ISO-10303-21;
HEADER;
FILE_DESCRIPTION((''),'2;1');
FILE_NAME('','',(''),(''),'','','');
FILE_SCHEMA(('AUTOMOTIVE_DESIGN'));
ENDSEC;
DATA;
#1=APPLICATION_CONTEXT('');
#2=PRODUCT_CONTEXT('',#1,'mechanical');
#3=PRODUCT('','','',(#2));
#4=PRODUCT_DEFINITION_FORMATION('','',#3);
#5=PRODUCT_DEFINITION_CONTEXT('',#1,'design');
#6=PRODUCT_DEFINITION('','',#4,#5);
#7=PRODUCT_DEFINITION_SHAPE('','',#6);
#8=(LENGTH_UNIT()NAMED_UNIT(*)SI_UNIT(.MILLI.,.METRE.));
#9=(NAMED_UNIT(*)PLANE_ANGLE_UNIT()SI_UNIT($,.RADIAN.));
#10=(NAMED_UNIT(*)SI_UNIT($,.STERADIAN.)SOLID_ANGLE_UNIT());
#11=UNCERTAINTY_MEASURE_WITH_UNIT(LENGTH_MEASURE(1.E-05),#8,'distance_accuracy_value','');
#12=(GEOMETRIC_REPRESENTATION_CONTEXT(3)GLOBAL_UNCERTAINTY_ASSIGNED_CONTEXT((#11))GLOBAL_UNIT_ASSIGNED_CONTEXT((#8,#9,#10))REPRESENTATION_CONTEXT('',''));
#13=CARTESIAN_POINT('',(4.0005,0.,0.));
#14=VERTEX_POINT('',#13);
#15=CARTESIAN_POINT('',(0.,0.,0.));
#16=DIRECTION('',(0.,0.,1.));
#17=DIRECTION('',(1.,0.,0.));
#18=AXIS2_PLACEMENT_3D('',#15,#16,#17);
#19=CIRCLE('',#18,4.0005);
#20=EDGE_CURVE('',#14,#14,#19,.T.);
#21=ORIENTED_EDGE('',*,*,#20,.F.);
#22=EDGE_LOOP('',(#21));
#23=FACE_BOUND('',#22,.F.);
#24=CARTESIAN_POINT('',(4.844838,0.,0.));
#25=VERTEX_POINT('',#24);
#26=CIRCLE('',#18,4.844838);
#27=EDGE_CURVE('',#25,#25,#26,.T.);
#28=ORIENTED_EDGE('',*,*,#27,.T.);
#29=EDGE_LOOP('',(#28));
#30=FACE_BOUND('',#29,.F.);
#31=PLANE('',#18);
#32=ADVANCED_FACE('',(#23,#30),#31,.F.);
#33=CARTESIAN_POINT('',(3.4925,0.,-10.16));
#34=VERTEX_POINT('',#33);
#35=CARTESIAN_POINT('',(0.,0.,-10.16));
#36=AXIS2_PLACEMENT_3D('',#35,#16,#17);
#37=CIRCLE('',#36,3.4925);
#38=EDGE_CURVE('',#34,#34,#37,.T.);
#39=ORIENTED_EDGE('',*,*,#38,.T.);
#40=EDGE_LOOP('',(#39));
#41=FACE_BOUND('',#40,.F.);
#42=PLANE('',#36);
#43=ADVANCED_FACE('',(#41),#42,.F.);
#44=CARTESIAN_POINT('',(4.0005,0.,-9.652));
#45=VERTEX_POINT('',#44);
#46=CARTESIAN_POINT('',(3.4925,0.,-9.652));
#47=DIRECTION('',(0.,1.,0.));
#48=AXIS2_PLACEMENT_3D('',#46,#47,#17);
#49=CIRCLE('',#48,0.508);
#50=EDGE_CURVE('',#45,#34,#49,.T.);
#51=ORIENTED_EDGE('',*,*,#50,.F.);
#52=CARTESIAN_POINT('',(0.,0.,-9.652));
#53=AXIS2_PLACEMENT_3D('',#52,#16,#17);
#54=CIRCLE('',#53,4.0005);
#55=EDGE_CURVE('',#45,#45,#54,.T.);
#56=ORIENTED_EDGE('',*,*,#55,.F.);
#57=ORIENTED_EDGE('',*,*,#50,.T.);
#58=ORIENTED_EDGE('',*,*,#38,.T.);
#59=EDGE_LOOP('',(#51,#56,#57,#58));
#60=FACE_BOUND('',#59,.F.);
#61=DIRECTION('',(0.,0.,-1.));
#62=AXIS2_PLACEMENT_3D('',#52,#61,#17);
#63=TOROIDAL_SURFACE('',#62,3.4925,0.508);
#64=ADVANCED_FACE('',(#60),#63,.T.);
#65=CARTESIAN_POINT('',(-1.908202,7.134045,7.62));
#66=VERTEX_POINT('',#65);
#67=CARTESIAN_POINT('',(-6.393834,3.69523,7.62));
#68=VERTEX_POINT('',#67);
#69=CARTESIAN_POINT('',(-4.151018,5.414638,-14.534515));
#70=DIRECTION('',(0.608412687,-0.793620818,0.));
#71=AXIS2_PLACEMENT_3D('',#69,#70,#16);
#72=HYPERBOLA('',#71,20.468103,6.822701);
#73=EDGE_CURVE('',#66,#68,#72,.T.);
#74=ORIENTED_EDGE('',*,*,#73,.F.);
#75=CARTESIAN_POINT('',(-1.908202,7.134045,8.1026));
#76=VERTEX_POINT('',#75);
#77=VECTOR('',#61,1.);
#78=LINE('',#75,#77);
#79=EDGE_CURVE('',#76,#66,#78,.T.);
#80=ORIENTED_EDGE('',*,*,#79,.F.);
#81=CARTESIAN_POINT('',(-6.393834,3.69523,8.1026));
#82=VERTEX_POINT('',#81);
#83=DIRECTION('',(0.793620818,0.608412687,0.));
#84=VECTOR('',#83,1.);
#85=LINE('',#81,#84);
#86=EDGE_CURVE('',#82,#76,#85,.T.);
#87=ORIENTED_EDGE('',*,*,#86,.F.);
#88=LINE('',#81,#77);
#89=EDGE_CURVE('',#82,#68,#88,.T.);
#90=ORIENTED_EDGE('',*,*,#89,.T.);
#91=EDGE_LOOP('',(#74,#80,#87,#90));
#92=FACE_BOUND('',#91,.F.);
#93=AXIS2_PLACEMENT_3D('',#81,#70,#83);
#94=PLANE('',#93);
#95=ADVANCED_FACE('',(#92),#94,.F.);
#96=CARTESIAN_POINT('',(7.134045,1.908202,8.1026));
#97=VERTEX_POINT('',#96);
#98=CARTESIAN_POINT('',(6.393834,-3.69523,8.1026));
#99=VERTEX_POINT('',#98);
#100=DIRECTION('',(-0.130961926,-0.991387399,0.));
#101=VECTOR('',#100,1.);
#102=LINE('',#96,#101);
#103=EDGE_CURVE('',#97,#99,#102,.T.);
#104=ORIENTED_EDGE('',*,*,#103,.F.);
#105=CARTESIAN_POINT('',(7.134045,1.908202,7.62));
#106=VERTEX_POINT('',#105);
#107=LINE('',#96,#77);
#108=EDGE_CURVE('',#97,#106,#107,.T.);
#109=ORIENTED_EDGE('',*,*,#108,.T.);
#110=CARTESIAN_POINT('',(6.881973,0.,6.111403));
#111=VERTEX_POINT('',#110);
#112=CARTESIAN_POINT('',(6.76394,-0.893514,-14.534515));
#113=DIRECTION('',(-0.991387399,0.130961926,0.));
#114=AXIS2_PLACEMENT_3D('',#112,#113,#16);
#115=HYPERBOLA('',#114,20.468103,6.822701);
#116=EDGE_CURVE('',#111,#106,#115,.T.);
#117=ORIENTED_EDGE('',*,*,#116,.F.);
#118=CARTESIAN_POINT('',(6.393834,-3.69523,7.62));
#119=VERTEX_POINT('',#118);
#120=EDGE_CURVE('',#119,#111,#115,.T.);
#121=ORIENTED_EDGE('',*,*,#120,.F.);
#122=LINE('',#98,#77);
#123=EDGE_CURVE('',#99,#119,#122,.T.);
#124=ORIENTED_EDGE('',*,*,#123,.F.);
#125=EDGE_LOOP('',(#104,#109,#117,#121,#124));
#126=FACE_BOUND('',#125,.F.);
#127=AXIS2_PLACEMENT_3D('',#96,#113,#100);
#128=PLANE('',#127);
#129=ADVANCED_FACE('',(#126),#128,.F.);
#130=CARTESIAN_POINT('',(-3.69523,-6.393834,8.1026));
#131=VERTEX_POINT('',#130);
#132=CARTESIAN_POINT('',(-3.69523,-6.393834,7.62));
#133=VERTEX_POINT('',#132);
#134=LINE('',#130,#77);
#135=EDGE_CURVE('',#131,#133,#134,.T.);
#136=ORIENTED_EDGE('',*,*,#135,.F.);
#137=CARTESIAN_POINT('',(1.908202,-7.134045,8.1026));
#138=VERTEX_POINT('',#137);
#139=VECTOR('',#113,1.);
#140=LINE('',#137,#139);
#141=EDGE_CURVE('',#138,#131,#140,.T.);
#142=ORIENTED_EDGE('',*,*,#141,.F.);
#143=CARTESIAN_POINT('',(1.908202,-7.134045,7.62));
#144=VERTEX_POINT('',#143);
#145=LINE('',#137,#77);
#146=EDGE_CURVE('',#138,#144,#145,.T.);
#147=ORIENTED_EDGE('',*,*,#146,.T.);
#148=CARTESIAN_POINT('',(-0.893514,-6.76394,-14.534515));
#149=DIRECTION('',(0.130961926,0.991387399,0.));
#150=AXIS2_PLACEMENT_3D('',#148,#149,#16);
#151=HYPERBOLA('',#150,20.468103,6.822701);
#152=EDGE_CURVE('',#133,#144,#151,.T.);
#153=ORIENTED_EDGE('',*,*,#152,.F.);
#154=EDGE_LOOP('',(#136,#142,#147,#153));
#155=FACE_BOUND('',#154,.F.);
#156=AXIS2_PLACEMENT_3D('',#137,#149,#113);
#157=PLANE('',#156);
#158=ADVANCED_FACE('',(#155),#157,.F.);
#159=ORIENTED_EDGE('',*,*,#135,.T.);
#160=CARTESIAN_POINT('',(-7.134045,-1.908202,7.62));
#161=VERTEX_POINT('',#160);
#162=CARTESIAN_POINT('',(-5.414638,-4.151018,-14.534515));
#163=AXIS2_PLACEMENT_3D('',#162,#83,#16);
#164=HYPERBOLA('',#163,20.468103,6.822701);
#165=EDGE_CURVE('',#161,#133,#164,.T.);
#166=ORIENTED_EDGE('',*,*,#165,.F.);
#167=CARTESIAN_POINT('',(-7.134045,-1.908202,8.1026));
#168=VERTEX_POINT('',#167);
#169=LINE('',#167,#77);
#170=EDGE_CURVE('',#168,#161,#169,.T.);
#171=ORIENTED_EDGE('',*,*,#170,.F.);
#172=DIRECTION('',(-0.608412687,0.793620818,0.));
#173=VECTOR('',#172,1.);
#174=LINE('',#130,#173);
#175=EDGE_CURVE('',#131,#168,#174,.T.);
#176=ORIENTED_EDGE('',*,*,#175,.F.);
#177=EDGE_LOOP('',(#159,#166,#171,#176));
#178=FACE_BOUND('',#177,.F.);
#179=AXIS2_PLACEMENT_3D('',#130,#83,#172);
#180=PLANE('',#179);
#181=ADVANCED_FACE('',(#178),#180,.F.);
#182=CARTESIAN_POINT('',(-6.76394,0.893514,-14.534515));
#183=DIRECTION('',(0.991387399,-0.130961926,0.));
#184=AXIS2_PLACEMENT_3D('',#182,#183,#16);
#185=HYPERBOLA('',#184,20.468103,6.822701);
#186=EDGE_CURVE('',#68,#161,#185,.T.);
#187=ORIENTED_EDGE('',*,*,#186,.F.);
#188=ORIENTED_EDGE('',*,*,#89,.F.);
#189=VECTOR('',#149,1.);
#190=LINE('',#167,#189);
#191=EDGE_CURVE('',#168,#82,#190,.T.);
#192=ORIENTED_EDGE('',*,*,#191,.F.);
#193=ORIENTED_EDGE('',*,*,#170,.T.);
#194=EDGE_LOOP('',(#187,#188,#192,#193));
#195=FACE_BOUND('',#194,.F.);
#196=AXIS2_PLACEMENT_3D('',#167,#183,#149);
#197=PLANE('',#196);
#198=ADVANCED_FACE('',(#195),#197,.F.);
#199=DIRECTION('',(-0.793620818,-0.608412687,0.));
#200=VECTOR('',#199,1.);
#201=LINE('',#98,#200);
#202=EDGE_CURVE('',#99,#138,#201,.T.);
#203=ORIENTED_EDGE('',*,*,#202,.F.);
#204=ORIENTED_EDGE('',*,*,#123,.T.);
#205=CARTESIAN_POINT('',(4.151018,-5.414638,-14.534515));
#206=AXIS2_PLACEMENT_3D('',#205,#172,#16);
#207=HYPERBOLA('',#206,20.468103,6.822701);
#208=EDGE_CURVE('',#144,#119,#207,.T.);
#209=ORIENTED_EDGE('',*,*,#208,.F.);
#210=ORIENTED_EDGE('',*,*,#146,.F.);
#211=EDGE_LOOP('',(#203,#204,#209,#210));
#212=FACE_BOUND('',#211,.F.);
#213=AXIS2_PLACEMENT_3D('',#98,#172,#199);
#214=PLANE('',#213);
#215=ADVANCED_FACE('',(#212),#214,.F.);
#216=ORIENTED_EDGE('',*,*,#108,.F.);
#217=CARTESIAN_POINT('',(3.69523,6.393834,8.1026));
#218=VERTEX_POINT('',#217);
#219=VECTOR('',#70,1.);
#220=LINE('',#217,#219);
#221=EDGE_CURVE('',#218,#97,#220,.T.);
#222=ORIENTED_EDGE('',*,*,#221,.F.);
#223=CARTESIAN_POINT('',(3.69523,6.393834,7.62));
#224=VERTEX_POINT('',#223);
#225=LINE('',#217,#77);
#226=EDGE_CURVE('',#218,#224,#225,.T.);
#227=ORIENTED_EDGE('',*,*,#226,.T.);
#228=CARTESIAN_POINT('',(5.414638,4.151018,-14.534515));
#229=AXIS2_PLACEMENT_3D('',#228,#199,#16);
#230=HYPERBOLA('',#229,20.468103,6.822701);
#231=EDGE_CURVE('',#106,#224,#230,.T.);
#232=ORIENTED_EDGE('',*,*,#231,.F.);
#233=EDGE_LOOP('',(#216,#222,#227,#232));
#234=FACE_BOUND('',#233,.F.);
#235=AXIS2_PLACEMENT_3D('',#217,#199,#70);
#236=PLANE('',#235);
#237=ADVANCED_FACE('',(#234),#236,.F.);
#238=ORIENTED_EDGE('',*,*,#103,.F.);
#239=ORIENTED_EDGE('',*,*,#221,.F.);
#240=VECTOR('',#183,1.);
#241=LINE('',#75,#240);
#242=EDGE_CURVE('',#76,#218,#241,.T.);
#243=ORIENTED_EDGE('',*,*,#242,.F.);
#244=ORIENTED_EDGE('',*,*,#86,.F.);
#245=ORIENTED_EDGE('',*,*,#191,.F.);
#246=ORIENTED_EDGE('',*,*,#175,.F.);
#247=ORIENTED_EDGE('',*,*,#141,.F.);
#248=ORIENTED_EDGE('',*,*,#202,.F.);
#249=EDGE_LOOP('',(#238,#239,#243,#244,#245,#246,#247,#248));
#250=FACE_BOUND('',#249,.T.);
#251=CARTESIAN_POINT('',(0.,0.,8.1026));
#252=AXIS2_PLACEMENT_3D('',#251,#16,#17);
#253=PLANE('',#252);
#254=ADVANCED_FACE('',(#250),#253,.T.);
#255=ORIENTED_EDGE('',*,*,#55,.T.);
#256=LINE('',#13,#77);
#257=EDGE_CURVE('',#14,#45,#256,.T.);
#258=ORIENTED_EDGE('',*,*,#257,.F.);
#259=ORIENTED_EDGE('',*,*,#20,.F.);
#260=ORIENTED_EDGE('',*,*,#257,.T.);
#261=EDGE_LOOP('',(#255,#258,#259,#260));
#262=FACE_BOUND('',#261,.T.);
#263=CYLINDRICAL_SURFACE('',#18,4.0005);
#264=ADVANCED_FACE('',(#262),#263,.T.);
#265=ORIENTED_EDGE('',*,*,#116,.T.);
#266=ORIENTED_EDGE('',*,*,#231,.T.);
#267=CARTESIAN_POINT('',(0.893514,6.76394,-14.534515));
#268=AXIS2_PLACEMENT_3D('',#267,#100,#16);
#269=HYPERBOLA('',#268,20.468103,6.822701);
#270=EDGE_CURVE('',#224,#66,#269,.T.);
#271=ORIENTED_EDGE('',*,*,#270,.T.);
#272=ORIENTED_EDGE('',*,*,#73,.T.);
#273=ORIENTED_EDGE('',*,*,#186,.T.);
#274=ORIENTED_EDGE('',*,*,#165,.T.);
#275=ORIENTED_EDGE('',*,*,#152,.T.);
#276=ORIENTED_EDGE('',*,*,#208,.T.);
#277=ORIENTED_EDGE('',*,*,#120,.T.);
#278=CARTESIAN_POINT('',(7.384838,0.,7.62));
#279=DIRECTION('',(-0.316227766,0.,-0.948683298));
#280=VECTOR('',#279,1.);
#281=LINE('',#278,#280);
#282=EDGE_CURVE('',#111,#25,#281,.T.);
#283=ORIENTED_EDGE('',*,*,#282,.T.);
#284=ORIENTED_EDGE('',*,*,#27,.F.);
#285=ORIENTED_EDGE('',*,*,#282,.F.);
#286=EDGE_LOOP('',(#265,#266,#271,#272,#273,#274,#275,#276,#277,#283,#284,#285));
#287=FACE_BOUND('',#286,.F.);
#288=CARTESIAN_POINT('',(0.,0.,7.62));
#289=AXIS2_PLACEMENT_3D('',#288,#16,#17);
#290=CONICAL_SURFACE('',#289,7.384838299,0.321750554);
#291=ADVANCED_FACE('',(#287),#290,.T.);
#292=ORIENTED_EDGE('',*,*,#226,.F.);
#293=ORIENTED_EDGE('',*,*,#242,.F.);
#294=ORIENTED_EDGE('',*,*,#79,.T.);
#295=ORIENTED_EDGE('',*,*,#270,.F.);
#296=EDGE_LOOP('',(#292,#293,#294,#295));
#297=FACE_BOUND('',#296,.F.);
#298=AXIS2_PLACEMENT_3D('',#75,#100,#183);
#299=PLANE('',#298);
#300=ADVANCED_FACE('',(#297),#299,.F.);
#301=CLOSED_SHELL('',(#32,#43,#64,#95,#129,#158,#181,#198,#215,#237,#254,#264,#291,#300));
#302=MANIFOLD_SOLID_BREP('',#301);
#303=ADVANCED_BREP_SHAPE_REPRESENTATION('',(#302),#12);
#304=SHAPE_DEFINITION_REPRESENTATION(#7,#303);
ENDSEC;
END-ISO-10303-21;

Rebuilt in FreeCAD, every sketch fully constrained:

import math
import FreeCAD as App
import Part
import Sketcher
from FreeCAD import Vector
Q = App.Units.Quantity


def edges_at(feature, points):
    """Names of the edges that pass closest to the given points."""
    edges = feature.Shape.Edges
    near = lambda p: min(range(len(edges)), key=lambda i: edges[i].distToShape(Part.Vertex(*p))[0])
    return sorted({f"Edge{near(p) + 1}" for p in points})

doc = App.newDocument("Part")
body = doc.addObject("PartDesign::Body", "Body")

sketch1 = body.newObject("Sketcher::SketchObject", "Sketch")
sketch1.AttachmentSupport = (doc.getObject("XY_Plane"), [""])
sketch1.MapMode = "FlatFace"
sketch1.addGeometry(Part.Circle(Vector(0, 0, 0), Vector(0, 0, 1), 4.0005), False)
sketch1.addConstraint(Sketcher.Constraint("Coincident", 0, 3, -1, 1))
sketch1.addConstraint(Sketcher.Constraint("Diameter", 0, Q("0.315 in")))
pad1 = body.newObject("PartDesign::Pad", "Pad")
pad1.Profile = sketch1
pad1.Length = Q("0.4 in")
pad1.Reversed = True

sketch2 = body.newObject("Sketcher::SketchObject", "Sketch001")
sketch2.AttachmentSupport = (doc.getObject("XY_Plane"), [""])
sketch2.MapMode = "FlatFace"
sketch2.addGeometry(Part.Circle(Vector(0, 0, 0), Vector(0, 0, 1), 7.384838), False)
sketch2.addConstraint(Sketcher.Constraint("Coincident", 0, 3, -1, 1))
sketch2.addConstraint(Sketcher.Constraint("Diameter", 0, Q("14.769677 mm")))
pad2 = body.newObject("PartDesign::Pad", "Pad001")
pad2.Profile = sketch2
pad2.Length = Q("0.319 in")
doc.recompute()

chamfer = body.newObject("PartDesign::Chamfer", "Chamfer")
chamfer.Base = (pad2, edges_at(pad2, [(-7.385, 0, 0)]))
chamfer.ChamferType = "Two distances"
chamfer.Size = Q("0.3 in")
chamfer.Size2 = Q("0.1 in")
chamfer.FlipDirection = True

sketch3 = body.newObject("Sketcher::SketchObject", "Sketch002")
sketch3.AttachmentSupport = (doc.getObject("XY_Plane"), [""])
sketch3.MapMode = "FlatFace"
sketch3.AttachmentOffset = App.Placement(Vector(0, 0, 0.319 * 25.4), App.Rotation())
sketch3.addGeometry(Part.LineSegment(Vector(-6.393834, 3.69523, 0), Vector(-1.908202, 7.134045, 0)), False)
sketch3.addGeometry(Part.ArcOfCircle(Part.Circle(Vector(0, 0, 0), Vector(0, 0, 1), 7.384838), math.radians(104.974818), math.radians(149.974818)), False)
sketch3.addGeometry(Part.LineSegment(Vector(-1.908202, 7.134045, 0), Vector(3.69523, 6.393834, 0)), False)
sketch3.addGeometry(Part.ArcOfCircle(Part.Circle(Vector(0, 0, 0), Vector(0, 0, 1), 7.384838), math.radians(59.974818), math.radians(104.974818)), False)
sketch3.addGeometry(Part.LineSegment(Vector(3.69523, 6.393834, 0), Vector(7.134045, 1.908202, 0)), False)
sketch3.addGeometry(Part.ArcOfCircle(Part.Circle(Vector(0, 0, 0), Vector(0, 0, 1), 7.384838), math.radians(14.974818), math.radians(59.974818)), False)
sketch3.addGeometry(Part.LineSegment(Vector(7.134045, 1.908202, 0), Vector(6.393834, -3.69523, 0)), False)
sketch3.addGeometry(Part.ArcOfCircle(Part.Circle(Vector(0, 0, 0), Vector(0, 0, 1), 7.384838), math.radians(-30.025182), math.radians(0)), False)
sketch3.addGeometry(Part.ArcOfCircle(Part.Circle(Vector(0, 0, 0), Vector(0, 0, 1), 7.384838), math.radians(0), math.radians(14.974818)), False)
sketch3.addGeometry(Part.ArcOfCircle(Part.Circle(Vector(0, 0, 0), Vector(0, 0, 1), 7.384838), math.radians(-75.025182), math.radians(-30.025182)), False)
sketch3.addGeometry(Part.LineSegment(Vector(6.393834, -3.69523, 0), Vector(1.908202, -7.134045, 0)), False)
sketch3.addGeometry(Part.ArcOfCircle(Part.Circle(Vector(0, 0, 0), Vector(0, 0, 1), 7.384838), math.radians(-120.025182), math.radians(-75.025182)), False)
sketch3.addGeometry(Part.LineSegment(Vector(1.908202, -7.134045, 0), Vector(-3.69523, -6.393834, 0)), False)
sketch3.addGeometry(Part.ArcOfCircle(Part.Circle(Vector(0, 0, 0), Vector(0, 0, 1), 7.384838), math.radians(-165.025182), math.radians(-120.025182)), False)
sketch3.addGeometry(Part.LineSegment(Vector(-3.69523, -6.393834, 0), Vector(-7.134045, -1.908202, 0)), False)
sketch3.addGeometry(Part.ArcOfCircle(Part.Circle(Vector(0, 0, 0), Vector(0, 0, 1), 7.384838), math.radians(149.974818), math.radians(194.974818)), False)
sketch3.addGeometry(Part.LineSegment(Vector(-7.134045, -1.908202, 0), Vector(-6.393834, 3.69523, 0)), False)
sketch3.addConstraint(Sketcher.Constraint("Coincident", 0, 1, 1, 2))
sketch3.addConstraint(Sketcher.Constraint("Coincident", 1, 1, 0, 2))
sketch3.addConstraint(Sketcher.Constraint("Coincident", 2, 1, 3, 2))
sketch3.addConstraint(Sketcher.Constraint("Coincident", 3, 1, 2, 2))
sketch3.addConstraint(Sketcher.Constraint("Coincident", 4, 1, 5, 2))
sketch3.addConstraint(Sketcher.Constraint("Coincident", 5, 1, 4, 2))
sketch3.addConstraint(Sketcher.Constraint("Coincident", 6, 2, 7, 1))
sketch3.addConstraint(Sketcher.Constraint("Tangent", 7, 2, 8, 1))
sketch3.addConstraint(Sketcher.Constraint("Coincident", 8, 2, 6, 1))
sketch3.addConstraint(Sketcher.Constraint("Coincident", 9, 1, 10, 2))
sketch3.addConstraint(Sketcher.Constraint("Coincident", 10, 1, 9, 2))
sketch3.addConstraint(Sketcher.Constraint("Coincident", 11, 1, 12, 2))
sketch3.addConstraint(Sketcher.Constraint("Coincident", 12, 1, 11, 2))
sketch3.addConstraint(Sketcher.Constraint("Coincident", 13, 1, 14, 2))
sketch3.addConstraint(Sketcher.Constraint("Coincident", 14, 1, 13, 2))
sketch3.addConstraint(Sketcher.Constraint("Coincident", 15, 1, 16, 2))
sketch3.addConstraint(Sketcher.Constraint("Coincident", 16, 1, 15, 2))
sketch3.addConstraint(Sketcher.Constraint("Coincident", 1, 3, -1, 1))
sketch3.addConstraint(Sketcher.Constraint("Coincident", 3, 3, -1, 1))
sketch3.addConstraint(Sketcher.Constraint("Coincident", 5, 3, -1, 1))
sketch3.addConstraint(Sketcher.Constraint("Coincident", 7, 3, -1, 1))
sketch3.addConstraint(Sketcher.Constraint("Coincident", 9, 3, -1, 1))
sketch3.addConstraint(Sketcher.Constraint("Coincident", 11, 3, -1, 1))
sketch3.addConstraint(Sketcher.Constraint("Coincident", 13, 3, -1, 1))
sketch3.addConstraint(Sketcher.Constraint("Coincident", 15, 3, -1, 1))
sketch3.addConstraint(Sketcher.Constraint("Coincident", 2, 1, 1, 1))
sketch3.addConstraint(Sketcher.Constraint("Coincident", 4, 1, 3, 1))
sketch3.addConstraint(Sketcher.Constraint("Coincident", 8, 2, 5, 1))
sketch3.addConstraint(Sketcher.Constraint("Coincident", 10, 1, 6, 2))
sketch3.addConstraint(Sketcher.Constraint("Coincident", 12, 1, 9, 1))
sketch3.addConstraint(Sketcher.Constraint("Coincident", 14, 1, 11, 1))
sketch3.addConstraint(Sketcher.Constraint("Coincident", 15, 1, 0, 1))
sketch3.addConstraint(Sketcher.Constraint("Coincident", 16, 1, 13, 1))
sketch3.addConstraint(Sketcher.Constraint("PointOnObject", 7, 2, -1))
sketch3.addConstraint(Sketcher.Constraint("Perpendicular", 0, 4))
sketch3.addConstraint(Sketcher.Constraint("Perpendicular", 2, 6))
sketch3.addConstraint(Sketcher.Constraint("Perpendicular", 4, 10))
sketch3.addConstraint(Sketcher.Constraint("Perpendicular", 6, 12))
sketch3.addConstraint(Sketcher.Constraint("Perpendicular", 10, 14))
sketch3.addConstraint(Sketcher.Constraint("Perpendicular", 12, 16))
sketch3.addConstraint(Sketcher.Constraint("Equal", 0, 2))
sketch3.addConstraint(Sketcher.Constraint("Radius", 1, Q("7.384838 mm")))
sketch3.addConstraint(Sketcher.Constraint("DistanceX", 1, 1, -1, 1, Q("1.908202 mm")))
pocket1 = body.newObject("PartDesign::Pocket", "Pocket")
pocket1.Profile = sketch3
pocket1.Length = Q("1 in")
doc.recompute()

fillet = body.newObject("PartDesign::Fillet", "Fillet")
fillet.Base = (pocket1, edges_at(pocket1, [(-4, 0, -10.16)]))
fillet.Radius = Q("0.02 in")

doc.recompute()
